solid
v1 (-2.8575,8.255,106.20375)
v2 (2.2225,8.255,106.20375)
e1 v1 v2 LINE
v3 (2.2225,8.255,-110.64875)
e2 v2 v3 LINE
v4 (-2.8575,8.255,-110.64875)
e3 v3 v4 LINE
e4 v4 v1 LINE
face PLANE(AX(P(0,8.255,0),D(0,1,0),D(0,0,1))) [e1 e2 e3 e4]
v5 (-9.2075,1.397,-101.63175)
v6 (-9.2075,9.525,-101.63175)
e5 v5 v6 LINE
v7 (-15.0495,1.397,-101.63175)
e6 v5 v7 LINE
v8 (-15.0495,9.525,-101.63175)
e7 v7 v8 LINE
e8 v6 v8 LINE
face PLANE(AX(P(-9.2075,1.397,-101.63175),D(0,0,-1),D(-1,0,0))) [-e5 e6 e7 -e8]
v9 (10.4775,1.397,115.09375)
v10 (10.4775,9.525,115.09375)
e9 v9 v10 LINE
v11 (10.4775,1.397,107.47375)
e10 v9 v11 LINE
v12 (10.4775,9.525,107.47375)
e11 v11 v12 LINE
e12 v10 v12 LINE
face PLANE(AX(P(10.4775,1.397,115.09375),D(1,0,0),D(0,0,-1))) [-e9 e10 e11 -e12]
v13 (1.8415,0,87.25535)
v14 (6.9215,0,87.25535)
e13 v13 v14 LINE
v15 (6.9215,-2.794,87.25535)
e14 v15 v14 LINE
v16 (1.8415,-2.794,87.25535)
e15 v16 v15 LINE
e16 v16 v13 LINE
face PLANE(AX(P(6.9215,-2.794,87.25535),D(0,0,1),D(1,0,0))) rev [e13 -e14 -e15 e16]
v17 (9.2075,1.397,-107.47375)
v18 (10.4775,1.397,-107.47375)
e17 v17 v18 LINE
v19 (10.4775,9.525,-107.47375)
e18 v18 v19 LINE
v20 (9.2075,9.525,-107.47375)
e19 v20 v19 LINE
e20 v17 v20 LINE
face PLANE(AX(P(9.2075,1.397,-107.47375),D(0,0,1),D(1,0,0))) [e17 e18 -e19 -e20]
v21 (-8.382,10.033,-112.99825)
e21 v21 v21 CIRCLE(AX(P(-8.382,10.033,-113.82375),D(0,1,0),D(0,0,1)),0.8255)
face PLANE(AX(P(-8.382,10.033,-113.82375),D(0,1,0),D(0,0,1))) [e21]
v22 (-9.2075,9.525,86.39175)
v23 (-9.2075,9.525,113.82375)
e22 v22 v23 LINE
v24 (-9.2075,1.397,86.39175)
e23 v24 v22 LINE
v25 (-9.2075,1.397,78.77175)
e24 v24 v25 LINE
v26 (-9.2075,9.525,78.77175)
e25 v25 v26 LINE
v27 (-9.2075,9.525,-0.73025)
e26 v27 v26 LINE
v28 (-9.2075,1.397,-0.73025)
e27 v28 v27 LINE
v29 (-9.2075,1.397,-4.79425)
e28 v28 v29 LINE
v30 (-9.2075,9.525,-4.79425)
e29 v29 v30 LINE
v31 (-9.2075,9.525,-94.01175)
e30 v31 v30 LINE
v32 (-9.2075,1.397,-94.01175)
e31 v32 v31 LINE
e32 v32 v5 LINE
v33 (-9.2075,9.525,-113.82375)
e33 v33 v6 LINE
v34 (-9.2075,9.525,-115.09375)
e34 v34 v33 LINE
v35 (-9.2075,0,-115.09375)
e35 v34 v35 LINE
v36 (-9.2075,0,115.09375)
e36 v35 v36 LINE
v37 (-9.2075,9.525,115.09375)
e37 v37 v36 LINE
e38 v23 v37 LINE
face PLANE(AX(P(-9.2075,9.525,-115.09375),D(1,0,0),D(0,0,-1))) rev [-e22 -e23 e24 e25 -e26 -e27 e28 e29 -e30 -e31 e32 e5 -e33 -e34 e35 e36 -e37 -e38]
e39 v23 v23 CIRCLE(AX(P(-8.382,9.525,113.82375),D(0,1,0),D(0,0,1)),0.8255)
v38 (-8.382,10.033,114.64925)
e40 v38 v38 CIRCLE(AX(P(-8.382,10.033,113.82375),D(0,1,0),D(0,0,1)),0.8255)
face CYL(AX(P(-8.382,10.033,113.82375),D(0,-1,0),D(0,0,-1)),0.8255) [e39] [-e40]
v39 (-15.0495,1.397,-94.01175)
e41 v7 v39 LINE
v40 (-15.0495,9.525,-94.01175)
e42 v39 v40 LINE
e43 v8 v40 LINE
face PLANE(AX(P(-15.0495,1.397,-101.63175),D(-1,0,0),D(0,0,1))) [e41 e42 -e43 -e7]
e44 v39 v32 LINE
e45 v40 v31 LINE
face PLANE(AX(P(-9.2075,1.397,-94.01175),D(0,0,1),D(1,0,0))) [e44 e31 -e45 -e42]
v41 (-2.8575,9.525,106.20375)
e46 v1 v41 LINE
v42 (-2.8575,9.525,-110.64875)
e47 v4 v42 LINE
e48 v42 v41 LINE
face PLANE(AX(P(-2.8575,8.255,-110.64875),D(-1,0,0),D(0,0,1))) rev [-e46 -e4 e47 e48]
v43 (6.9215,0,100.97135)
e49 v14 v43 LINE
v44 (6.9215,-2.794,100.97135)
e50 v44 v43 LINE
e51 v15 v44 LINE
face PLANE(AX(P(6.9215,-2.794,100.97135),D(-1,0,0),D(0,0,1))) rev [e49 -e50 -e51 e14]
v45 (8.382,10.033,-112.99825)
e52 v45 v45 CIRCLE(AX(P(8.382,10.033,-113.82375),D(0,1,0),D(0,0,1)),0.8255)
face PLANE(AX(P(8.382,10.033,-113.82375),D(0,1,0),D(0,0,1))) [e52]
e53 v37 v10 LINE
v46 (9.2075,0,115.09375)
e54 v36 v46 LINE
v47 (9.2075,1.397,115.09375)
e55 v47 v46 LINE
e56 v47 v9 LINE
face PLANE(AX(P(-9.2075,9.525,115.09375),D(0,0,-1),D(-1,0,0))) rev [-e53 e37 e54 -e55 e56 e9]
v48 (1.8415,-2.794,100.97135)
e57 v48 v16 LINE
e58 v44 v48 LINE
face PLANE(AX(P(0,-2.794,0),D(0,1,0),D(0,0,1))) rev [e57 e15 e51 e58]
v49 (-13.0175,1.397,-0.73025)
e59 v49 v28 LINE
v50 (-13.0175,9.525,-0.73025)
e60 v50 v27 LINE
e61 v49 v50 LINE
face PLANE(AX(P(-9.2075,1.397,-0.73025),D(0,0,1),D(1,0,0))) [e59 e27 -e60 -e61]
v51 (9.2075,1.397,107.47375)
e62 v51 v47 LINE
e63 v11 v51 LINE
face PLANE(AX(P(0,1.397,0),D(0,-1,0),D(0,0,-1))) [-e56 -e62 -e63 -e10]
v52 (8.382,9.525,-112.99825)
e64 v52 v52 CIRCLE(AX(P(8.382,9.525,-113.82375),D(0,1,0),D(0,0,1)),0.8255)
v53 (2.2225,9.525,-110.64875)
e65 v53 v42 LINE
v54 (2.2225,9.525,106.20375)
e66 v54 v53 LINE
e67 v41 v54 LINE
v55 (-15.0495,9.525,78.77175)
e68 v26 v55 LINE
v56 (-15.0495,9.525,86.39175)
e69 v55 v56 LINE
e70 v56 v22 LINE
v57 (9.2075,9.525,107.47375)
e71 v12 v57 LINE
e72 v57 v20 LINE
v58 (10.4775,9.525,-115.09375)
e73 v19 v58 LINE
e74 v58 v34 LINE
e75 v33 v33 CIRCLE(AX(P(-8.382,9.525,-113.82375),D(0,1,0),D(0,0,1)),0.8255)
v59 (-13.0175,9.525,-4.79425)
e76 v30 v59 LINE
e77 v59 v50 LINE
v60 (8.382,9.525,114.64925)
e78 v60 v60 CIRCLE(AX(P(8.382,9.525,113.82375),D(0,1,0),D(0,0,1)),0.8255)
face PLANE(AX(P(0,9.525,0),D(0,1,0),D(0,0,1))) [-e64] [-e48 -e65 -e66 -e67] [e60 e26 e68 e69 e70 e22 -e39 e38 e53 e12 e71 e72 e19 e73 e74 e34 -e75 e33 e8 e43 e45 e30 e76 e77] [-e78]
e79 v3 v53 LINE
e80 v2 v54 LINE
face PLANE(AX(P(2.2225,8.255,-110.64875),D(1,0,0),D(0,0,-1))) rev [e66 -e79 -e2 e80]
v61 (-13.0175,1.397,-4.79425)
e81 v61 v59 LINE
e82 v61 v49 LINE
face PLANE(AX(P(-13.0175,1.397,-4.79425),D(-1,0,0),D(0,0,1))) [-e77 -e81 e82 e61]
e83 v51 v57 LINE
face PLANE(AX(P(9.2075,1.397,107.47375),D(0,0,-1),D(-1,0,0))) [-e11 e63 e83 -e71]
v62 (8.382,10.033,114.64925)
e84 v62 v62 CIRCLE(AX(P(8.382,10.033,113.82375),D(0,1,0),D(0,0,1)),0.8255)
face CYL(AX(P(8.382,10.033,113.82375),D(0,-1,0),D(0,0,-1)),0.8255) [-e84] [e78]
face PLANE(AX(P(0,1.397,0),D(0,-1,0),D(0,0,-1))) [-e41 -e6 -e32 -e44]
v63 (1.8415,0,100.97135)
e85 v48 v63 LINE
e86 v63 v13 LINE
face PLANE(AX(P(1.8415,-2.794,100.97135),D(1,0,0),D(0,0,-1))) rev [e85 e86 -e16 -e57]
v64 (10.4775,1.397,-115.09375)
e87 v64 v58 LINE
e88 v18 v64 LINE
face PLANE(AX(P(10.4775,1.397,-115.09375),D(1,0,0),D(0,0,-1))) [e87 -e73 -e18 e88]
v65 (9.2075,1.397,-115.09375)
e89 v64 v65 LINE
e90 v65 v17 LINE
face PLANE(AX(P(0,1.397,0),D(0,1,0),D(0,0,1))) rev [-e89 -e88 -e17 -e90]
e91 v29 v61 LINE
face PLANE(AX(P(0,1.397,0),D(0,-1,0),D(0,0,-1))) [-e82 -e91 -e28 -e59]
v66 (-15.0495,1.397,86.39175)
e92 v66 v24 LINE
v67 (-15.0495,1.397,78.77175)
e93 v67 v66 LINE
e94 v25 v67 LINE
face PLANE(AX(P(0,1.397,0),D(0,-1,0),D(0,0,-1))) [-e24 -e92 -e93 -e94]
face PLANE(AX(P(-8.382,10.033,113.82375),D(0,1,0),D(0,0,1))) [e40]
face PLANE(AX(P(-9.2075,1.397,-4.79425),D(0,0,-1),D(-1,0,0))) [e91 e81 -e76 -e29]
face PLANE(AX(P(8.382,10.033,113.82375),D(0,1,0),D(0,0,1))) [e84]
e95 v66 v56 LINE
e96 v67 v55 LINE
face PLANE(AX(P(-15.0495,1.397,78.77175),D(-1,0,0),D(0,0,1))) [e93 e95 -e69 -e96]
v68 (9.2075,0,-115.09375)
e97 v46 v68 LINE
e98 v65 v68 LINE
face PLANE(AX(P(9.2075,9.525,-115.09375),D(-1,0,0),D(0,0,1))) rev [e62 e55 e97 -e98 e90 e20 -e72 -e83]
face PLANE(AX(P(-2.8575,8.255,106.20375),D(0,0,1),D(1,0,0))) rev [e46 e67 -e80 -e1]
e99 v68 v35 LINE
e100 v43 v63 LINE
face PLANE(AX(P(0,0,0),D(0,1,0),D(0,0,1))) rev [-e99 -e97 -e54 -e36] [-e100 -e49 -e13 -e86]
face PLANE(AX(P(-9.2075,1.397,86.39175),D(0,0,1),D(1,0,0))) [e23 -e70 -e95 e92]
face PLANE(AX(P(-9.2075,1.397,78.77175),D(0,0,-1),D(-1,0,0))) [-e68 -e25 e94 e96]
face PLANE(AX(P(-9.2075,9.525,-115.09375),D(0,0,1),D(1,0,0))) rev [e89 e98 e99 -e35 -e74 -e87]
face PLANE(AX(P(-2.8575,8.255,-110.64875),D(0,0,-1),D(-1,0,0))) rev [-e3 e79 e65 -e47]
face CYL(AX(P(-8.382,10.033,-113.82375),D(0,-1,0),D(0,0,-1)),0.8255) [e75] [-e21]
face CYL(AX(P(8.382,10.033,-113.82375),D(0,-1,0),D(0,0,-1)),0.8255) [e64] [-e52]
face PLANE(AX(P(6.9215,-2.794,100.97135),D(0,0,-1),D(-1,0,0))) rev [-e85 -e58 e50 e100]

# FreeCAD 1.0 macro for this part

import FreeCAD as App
import Part
import Sketcher

V = App.Vector
Q = App.Units.Quantity

doc = App.newDocument("Part")
body = doc.addObject("PartDesign::Body", "Body")

# Sketch on XZ plane
sketch1 = body.newObject("Sketcher::SketchObject", "Sketch")
sketch1.AttachmentSupport = (doc.getObject("XZ_Plane"), [""])
sketch1.MapMode = "FlatFace"
sketch1.addGeometry([
    Part.LineSegment(V(-9.2075, -115.09375, 0), V(-9.2075, 115.09375, 0)),
    Part.LineSegment(V(-9.2075, 115.09375, 0), V(9.2075, 115.09375, 0)),
    Part.LineSegment(V(9.2075, 115.09375, 0), V(9.2075, -115.09375, 0)),
    Part.LineSegment(V(9.2075, -115.09375, 0), V(-9.2075, -115.09375, 0)),
], False)
sketch1.addConstraint([
    Sketcher.Constraint("Coincident", 0, 2, 1, 1),
    Sketcher.Constraint("Coincident", 1, 2, 2, 1),
    Sketcher.Constraint("Coincident", 2, 2, 3, 1),
    Sketcher.Constraint("Coincident", 3, 2, 0, 1),
    Sketcher.Constraint("Vertical", 0),
    Sketcher.Constraint("Horizontal", 1),
    Sketcher.Constraint("Vertical", 2),
    Sketcher.Constraint("Horizontal", 3),
    Sketcher.Constraint("Symmetric", 0, 2, 2, 2, -1, 1),
    Sketcher.Constraint("DistanceX", 1, 1, 1, 2, Q("0.725 in")),
    Sketcher.Constraint("DistanceY", 0, 1, 0, 2, Q("9.0625 in")),
])
pad1 = body.newObject("PartDesign::Pad", "Pad")
pad1.Profile = sketch1
pad1.Length = Q("0.375 in")
pad1.Reversed = True

# Sketch on XZ plane
sketch2 = body.newObject("Sketcher::SketchObject", "Sketch001")
sketch2.AttachmentSupport = (doc.getObject("XZ_Plane"), [""])
sketch2.MapMode = "FlatFace"
sketch2.AttachmentOffset = App.Placement(V(0, 0, -0.375 * 25.4), App.Rotation())
sketch2.addGeometry([
    Part.LineSegment(V(-2.8575, -110.64875, 0), V(-2.8575, 106.20375, 0)),
    Part.LineSegment(V(-2.8575, 106.20375, 0), V(2.2225, 106.20375, 0)),
    Part.LineSegment(V(2.2225, 106.20375, 0), V(2.2225, -110.64875, 0)),
    Part.LineSegment(V(2.2225, -110.64875, 0), V(-2.8575, -110.64875, 0)),
], False)
sketch2.addConstraint([
    Sketcher.Constraint("Coincident", 0, 2, 1, 1),
    Sketcher.Constraint("Coincident", 1, 2, 2, 1),
    Sketcher.Constraint("Coincident", 2, 2, 3, 1),
    Sketcher.Constraint("Coincident", 3, 2, 0, 1),
    Sketcher.Constraint("Vertical", 0),
    Sketcher.Constraint("Horizontal", 1),
    Sketcher.Constraint("Vertical", 2),
    Sketcher.Constraint("Horizontal", 3),
    Sketcher.Constraint("DistanceX", 1, 1, 1, 2, Q("0.2 in")),
    Sketcher.Constraint("DistanceY", 0, 1, 0, 2, Q("8.5375 in")),
    Sketcher.Constraint("DistanceX", 0, 2, -1, 1, Q("0.1125 in")),
    Sketcher.Constraint("DistanceY", -1, 1, 0, 2, 106.20375),
])
pocket1 = body.newObject("PartDesign::Pocket", "Pocket")
pocket1.Profile = sketch2
pocket1.Length = Q("0.05 in")
pocket1.Reversed = True

# Sketch on XZ plane
sketch3 = body.newObject("Sketcher::SketchObject", "Sketch002")
sketch3.AttachmentSupport = (doc.getObject("XZ_Plane"), [""])
sketch3.MapMode = "FlatFace"
sketch3.AttachmentOffset = App.Placement(V(0, 0, -0.375 * 25.4), App.Rotation())
sketch3.addGeometry([
    Part.LineSegment(V(-15.0495, -101.63175, 0), V(-15.0495, -94.01175, 0)),  # 0
    Part.LineSegment(V(-15.0495, -94.01175, 0), V(-9.2075, -94.01175, 0)),  # 1
    Part.LineSegment(V(-9.2075, -94.01175, 0), V(-9.2075, -101.63175, 0)),  # 2
    Part.LineSegment(V(-9.2075, -101.63175, 0), V(-15.0495, -101.63175, 0)),  # 3
    Part.LineSegment(V(-13.0175, -4.79425, 0), V(-13.0175, -0.73025, 0)),  # 4
    Part.LineSegment(V(-13.0175, -0.73025, 0), V(-9.2075, -0.73025, 0)),  # 5
    Part.LineSegment(V(-9.2075, -0.73025, 0), V(-9.2075, -4.79425, 0)),  # 6
    Part.LineSegment(V(-9.2075, -4.79425, 0), V(-13.0175, -4.79425, 0)),  # 7
    Part.LineSegment(V(-15.0495, 78.77175, 0), V(-15.0495, 86.39175, 0)),  # 8
    Part.LineSegment(V(-15.0495, 86.39175, 0), V(-9.2075, 86.39175, 0)),  # 9
    Part.LineSegment(V(-9.2075, 86.39175, 0), V(-9.2075, 78.77175, 0)),  # 10
    Part.LineSegment(V(-9.2075, 78.77175, 0), V(-15.0495, 78.77175, 0)),  # 11
    Part.LineSegment(V(9.2075, -115.09375, 0), V(9.2075, -107.47375, 0)),  # 12
    Part.LineSegment(V(9.2075, -107.47375, 0), V(10.4775, -107.47375, 0)),  # 13
    Part.LineSegment(V(10.4775, -107.47375, 0), V(10.4775, -115.09375, 0)),  # 14
    Part.LineSegment(V(10.4775, -115.09375, 0), V(9.2075, -115.09375, 0)),  # 15
    Part.LineSegment(V(9.2075, 107.47375, 0), V(9.2075, 115.09375, 0)),  # 16
    Part.LineSegment(V(9.2075, 115.09375, 0), V(10.4775, 115.09375, 0)),  # 17
    Part.LineSegment(V(10.4775, 115.09375, 0), V(10.4775, 107.47375, 0)),  # 18
    Part.LineSegment(V(10.4775, 107.47375, 0), V(9.2075, 107.47375, 0)),  # 19
], False)
sketch3.addConstraint([
    Sketcher.Constraint("Coincident", 0, 2, 1, 1),
    Sketcher.Constraint("Coincident", 1, 2, 2, 1),
    Sketcher.Constraint("Coincident", 2, 2, 3, 1),
    Sketcher.Constraint("Coincident", 3, 2, 0, 1),
    Sketcher.Constraint("Coincident", 4, 2, 5, 1),
    Sketcher.Constraint("Coincident", 5, 2, 6, 1),
    Sketcher.Constraint("Coincident", 6, 2, 7, 1),
    Sketcher.Constraint("Coincident", 7, 2, 4, 1),
    Sketcher.Constraint("Coincident", 8, 2, 9, 1),
    Sketcher.Constraint("Coincident", 9, 2, 10, 1),
    Sketcher.Constraint("Coincident", 10, 2, 11, 1),
    Sketcher.Constraint("Coincident", 11, 2, 8, 1),
    Sketcher.Constraint("Coincident", 12, 2, 13, 1),
    Sketcher.Constraint("Coincident", 13, 2, 14, 1),
    Sketcher.Constraint("Coincident", 14, 2, 15, 1),
    Sketcher.Constraint("Coincident", 15, 2, 12, 1),
    Sketcher.Constraint("Coincident", 16, 2, 17, 1),
    Sketcher.Constraint("Coincident", 17, 2, 18, 1),
    Sketcher.Constraint("Coincident", 18, 2, 19, 1),
    Sketcher.Constraint("Coincident", 19, 2, 16, 1),
    Sketcher.Constraint("Vertical", 0),
    Sketcher.Constraint("Horizontal", 1),
    Sketcher.Constraint("Vertical", 2),
    Sketcher.Constraint("Horizontal", 3),
    Sketcher.Constraint("Vertical", 4),
    Sketcher.Constraint("Horizontal", 5),
    Sketcher.Constraint("Vertical", 6),
    Sketcher.Constraint("Horizontal", 7),
    Sketcher.Constraint("Vertical", 8),
    Sketcher.Constraint("Horizontal", 9),
    Sketcher.Constraint("Vertical", 10),
    Sketcher.Constraint("Horizontal", 11),
    Sketcher.Constraint("Vertical", 12),
    Sketcher.Constraint("Horizontal", 13),
    Sketcher.Constraint("Vertical", 14),
    Sketcher.Constraint("Horizontal", 15),
    Sketcher.Constraint("Vertical", 16),
    Sketcher.Constraint("Horizontal", 17),
    Sketcher.Constraint("Vertical", 18),
    Sketcher.Constraint("Horizontal", 19),
    Sketcher.Constraint("Symmetric", 15, 2, 16, 2, -1),
    Sketcher.Constraint("Symmetric", 13, 2, 18, 2, -1),
    Sketcher.Constraint("Vertical", 2, 2, 5, 2),
    Sketcher.Constraint("Vertical", 3, 2, 8, 2),
    Sketcher.Constraint("Vertical", 6, 2, 9, 2),
    Sketcher.Constraint("Equal", 2, 8),
    Sketcher.Constraint("Equal", 10, 12),
    Sketcher.Constraint("DistanceY", 0, 1, 0, 2, Q("0.3 in")),
    Sketcher.Constraint("DistanceX", 1, 1, 1, 2, Q("0.23 in")),
    Sketcher.Constraint("DistanceX", 5, 1, 5, 2, Q("0.15 in")),
    Sketcher.Constraint("DistanceX", 13, 1, 13, 2, Q("0.05 in")),
    Sketcher.Constraint("DistanceY", 4, 1, 4, 2, Q("0.16 in")),
    Sketcher.Constraint("DistanceY", 4, 2, 8, 2, Q("3.43 in")),
    Sketcher.Constraint("DistanceY", 12, 2, 2, 2, Q("0.23 in")),
    Sketcher.Constraint("DistanceY", 9, 2, 16, 2, Q("1.13 in")),
    Sketcher.Constraint("DistanceY", 14, 2, -1, 1, Q("4.53125 in")),
    Sketcher.Constraint("DistanceX", 2, 2, 12, 2, Q("0.725 in")),
    Sketcher.Constraint("DistanceX", 0, 2, -1, 1, Q("0.5925 in")),
])
pad2 = body.newObject("PartDesign::Pad", "Pad001")
pad2.Profile = sketch3
pad2.Length = Q("0.32 in")

# Sketch on XZ plane
sketch4 = body.newObject("Sketcher::SketchObject", "Sketch003")
sketch4.AttachmentSupport = (doc.getObject("XZ_Plane"), [""])
sketch4.MapMode = "FlatFace"
sketch4.AttachmentOffset = App.Placement(V(0, 0, -0.375 * 25.4), App.Rotation())
sketch4.addGeometry([
    Part.Circle(V(-8.382, -113.82375, 0), V(0, 0, 1), 0.8255),
    Part.Circle(V(8.382, -113.82375, 0), V(0, 0, 1), 0.8255),
    Part.Circle(V(8.382, 113.82375, 0), V(0, 0, 1), 0.8255),
    Part.Circle(V(-8.382, 113.82375, 0), V(0, 0, 1), 0.8255),
], False)
sketch4.addConstraint([
    Sketcher.Constraint("Equal", 0, 1),
    Sketcher.Constraint("Equal", 1, 2),
    Sketcher.Constraint("Equal", 2, 3),
    Sketcher.Constraint("Symmetric", 0, 3, 2, 3, -1, 1),
    Sketcher.Constraint("Symmetric", 1, 3, 3, 3, -1, 1),
    Sketcher.Constraint("Symmetric", 0, 3, 1, 3, -2),
    Sketcher.Constraint("Diameter", 0, Q("0.065 in")),
    Sketcher.Constraint("DistanceX", 0, 3, -1, 1, Q("0.33 in")),
    Sketcher.Constraint("DistanceY", 1, 3, 2, 3, Q("8.9625 in")),
])
pad3 = body.newObject("PartDesign::Pad", "Pad002")
pad3.Profile = sketch4
pad3.Length = Q("0.02 in")
pad3.Reversed = True

# Sketch on XZ plane
sketch5 = body.newObject("Sketcher::SketchObject", "Sketch004")
sketch5.AttachmentSupport = (doc.getObject("XZ_Plane"), [""])
sketch5.MapMode = "FlatFace"
sketch5.addGeometry([
    Part.LineSegment(V(1.8415, 100.97135, 0), V(1.8415, 87.25535, 0)),
    Part.LineSegment(V(1.8415, 87.25535, 0), V(6.9215, 87.25535, 0)),
    Part.LineSegment(V(6.9215, 87.25535, 0), V(6.9215, 100.97135, 0)),
    Part.LineSegment(V(6.9215, 100.97135, 0), V(1.8415, 100.97135, 0)),
], False)
sketch5.addConstraint([
    Sketcher.Constraint("Coincident", 0, 2, 1, 1),
    Sketcher.Constraint("Coincident", 1, 2, 2, 1),
    Sketcher.Constraint("Coincident", 2, 2, 3, 1),
    Sketcher.Constraint("Coincident", 3, 2, 0, 1),
    Sketcher.Constraint("Vertical", 0),
    Sketcher.Constraint("Horizontal", 1),
    Sketcher.Constraint("Vertical", 2),
    Sketcher.Constraint("Horizontal", 3),
    Sketcher.Constraint("DistanceX", 1, 1, 1, 2, Q("0.2 in")),
    Sketcher.Constraint("DistanceY", 0, 2, 0, 1, Q("0.54 in")),
    Sketcher.Constraint("DistanceX", -1, 1, 0, 2, Q("0.0725 in")),
    Sketcher.Constraint("DistanceY", -1, 1, 0, 2, 87.25535),
])
pad4 = body.newObject("PartDesign::Pad", "Pad003")
pad4.Profile = sketch5
pad4.Length = Q("0.11 in")

doc.recompute()
